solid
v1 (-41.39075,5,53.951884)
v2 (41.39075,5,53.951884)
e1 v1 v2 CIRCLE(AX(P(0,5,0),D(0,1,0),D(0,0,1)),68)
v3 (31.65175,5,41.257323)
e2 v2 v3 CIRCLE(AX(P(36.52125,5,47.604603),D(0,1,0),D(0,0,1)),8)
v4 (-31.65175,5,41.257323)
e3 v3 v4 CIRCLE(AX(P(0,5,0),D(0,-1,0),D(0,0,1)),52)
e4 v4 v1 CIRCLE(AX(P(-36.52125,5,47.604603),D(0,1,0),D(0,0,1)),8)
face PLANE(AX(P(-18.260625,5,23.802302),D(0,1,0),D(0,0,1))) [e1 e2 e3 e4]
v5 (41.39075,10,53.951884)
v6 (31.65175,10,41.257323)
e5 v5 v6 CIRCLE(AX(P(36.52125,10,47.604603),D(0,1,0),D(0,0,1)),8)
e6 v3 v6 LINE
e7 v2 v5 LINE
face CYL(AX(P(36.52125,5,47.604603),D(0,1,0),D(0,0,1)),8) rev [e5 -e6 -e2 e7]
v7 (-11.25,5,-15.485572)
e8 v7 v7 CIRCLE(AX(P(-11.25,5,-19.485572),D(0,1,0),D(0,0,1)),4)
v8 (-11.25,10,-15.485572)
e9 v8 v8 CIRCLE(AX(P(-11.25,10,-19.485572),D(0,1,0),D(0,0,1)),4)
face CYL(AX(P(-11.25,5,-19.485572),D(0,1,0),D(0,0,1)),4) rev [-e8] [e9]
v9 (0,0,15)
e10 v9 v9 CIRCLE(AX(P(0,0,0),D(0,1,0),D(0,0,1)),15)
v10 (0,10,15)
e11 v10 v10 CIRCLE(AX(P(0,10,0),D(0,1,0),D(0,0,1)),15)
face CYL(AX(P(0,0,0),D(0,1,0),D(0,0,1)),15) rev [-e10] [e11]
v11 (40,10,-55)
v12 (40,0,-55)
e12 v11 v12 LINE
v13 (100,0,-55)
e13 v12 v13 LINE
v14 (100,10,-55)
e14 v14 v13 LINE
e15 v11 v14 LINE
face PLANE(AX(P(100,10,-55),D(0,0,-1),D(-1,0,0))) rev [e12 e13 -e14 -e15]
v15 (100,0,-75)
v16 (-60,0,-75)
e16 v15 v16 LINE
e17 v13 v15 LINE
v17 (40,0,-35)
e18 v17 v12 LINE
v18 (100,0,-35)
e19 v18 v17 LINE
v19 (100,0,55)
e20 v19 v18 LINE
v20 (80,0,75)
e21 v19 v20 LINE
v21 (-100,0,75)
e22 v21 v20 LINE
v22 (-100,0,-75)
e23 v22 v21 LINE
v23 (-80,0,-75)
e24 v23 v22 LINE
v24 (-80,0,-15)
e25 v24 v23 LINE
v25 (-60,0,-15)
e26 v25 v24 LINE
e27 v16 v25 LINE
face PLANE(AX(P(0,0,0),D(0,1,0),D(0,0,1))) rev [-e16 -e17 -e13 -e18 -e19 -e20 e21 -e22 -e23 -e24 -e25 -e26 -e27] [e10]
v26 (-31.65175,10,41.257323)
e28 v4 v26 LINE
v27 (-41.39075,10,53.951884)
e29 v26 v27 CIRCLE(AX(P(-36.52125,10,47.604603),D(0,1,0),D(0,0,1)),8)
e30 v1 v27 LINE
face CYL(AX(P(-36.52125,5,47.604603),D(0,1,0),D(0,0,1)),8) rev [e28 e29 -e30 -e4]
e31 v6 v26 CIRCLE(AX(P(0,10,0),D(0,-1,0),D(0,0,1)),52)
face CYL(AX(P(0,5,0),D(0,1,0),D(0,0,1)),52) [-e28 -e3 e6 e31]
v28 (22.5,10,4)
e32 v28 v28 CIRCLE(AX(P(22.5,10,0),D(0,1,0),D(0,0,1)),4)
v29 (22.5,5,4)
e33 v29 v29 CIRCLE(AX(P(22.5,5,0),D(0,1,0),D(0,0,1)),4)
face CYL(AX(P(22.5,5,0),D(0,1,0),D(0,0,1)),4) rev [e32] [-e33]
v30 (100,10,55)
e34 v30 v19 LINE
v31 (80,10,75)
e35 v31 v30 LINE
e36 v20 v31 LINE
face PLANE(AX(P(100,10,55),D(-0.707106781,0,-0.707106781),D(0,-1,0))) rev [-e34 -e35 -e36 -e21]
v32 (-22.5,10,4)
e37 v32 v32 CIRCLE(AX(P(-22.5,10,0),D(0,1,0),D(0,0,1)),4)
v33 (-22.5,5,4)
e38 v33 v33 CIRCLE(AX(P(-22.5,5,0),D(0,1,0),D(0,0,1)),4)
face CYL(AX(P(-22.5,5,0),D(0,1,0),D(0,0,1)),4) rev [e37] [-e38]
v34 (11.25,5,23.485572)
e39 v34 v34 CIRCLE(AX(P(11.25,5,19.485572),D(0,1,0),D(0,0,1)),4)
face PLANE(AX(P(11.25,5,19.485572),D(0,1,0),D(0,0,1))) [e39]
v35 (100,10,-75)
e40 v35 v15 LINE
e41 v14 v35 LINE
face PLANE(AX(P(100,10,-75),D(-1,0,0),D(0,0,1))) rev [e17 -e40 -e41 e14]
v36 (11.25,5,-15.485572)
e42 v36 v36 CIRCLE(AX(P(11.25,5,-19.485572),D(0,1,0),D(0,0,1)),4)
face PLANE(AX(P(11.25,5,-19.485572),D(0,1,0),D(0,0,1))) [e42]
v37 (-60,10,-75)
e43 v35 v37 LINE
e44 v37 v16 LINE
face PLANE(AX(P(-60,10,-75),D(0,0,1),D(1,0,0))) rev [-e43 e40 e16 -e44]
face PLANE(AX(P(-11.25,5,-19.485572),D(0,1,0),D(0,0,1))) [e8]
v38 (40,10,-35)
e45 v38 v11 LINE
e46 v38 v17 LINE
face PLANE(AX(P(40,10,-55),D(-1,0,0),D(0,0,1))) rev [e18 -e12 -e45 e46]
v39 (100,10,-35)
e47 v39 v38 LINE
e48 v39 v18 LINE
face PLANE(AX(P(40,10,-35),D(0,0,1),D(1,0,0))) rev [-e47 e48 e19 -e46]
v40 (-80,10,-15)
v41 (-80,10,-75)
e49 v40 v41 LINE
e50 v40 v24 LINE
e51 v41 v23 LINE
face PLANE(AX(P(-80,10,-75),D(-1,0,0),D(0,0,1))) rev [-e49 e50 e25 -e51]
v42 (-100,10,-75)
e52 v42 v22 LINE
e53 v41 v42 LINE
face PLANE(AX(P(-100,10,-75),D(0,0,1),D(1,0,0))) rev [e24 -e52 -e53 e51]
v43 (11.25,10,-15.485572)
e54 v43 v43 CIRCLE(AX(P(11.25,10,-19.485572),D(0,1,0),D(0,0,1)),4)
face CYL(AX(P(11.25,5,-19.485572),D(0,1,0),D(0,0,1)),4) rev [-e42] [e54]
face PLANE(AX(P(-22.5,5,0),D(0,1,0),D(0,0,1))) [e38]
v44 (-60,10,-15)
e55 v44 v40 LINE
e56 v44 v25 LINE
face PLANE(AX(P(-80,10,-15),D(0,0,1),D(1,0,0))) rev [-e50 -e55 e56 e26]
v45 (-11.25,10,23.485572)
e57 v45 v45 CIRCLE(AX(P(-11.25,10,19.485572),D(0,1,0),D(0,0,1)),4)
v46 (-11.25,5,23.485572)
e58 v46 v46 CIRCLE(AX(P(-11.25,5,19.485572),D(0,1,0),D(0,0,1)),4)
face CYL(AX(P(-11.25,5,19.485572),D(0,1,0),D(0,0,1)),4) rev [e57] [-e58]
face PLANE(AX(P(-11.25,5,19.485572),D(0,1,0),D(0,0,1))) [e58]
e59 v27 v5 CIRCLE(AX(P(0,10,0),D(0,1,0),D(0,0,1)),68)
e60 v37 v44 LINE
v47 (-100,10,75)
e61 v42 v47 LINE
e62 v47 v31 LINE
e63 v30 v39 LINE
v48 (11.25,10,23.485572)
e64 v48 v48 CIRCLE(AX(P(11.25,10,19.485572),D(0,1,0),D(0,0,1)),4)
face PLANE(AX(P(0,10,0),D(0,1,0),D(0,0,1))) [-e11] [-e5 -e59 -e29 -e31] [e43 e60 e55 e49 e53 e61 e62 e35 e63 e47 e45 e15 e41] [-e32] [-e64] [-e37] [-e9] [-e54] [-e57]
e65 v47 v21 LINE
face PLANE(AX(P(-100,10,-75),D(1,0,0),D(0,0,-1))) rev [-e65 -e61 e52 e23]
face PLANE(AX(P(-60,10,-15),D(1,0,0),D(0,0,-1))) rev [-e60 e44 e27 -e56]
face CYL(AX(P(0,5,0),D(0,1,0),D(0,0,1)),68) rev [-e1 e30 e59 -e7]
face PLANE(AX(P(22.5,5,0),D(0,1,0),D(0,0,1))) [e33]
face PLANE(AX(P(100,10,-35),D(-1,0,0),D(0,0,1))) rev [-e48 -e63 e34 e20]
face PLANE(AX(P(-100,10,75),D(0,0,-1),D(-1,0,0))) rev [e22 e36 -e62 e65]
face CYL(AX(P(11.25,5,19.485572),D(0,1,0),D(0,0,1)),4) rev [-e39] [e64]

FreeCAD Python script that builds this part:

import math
import FreeCAD as App
import Part
import Sketcher
Q = App.Units.Quantity


def edges_at(feature, points):
    """Names of the edges that pass closest to the given points."""
    edges = feature.Shape.Edges
    near = lambda p: min(range(len(edges)), key=lambda i: edges[i].distToShape(Part.Vertex(*p))[0])
    return sorted({f"Edge{near(p) + 1}" for p in points})


def add_polygon(sketch, points):
    """Adds a closed chain of lines whose ends are joined by coincident constraints."""
    first, n = sketch.GeometryCount, len(points)
    for a, b in zip(points, points[1:] + points[:1]):
        sketch.addGeometry(Part.LineSegment(App.Vector(*a, 0), App.Vector(*b, 0)), False)
    for i in range(n):
        sketch.addConstraint(Sketcher.Constraint("Coincident", first + i, 2, first + (i + 1) % n, 1))

doc = App.newDocument("Part")
body = doc.addObject("PartDesign::Body", "Body")

# Sketch on XZ plane
sketch1 = body.newObject("Sketcher::SketchObject", "Sketch")
sketch1.AttachmentSupport = (doc.getObject("XZ_Plane"), [""])
sketch1.MapMode = "FlatFace"
add_polygon(sketch1, [(-80, -15), (-80, -75), (-100, -75), (-100, 75), (100, 75), (100, -35), (40, -35), (40, -55), (100, -55), (100, -75), (-60, -75), (-60, -15)])  # lines 0-11
sketch1.addConstraint([
    Sketcher.Constraint("Vertical", 0),
    Sketcher.Constraint("Horizontal", 1),
    Sketcher.Constraint("Vertical", 2),
    Sketcher.Constraint("Horizontal", 3),
    Sketcher.Constraint("Vertical", 4),
    Sketcher.Constraint("Horizontal", 5),
    Sketcher.Constraint("Vertical", 6),
    Sketcher.Constraint("Horizontal", 7),
    Sketcher.Constraint("Vertical", 8),
    Sketcher.Constraint("Horizontal", 9),
    Sketcher.Constraint("Vertical", 10),
    Sketcher.Constraint("Horizontal", 11),
    Sketcher.Constraint("Symmetric", 1, 2, 3, 2, -1, 1),
    Sketcher.Constraint("Symmetric", 2, 2, 8, 2, -1, 1),
    Sketcher.Constraint("Equal", 1, 11),
    Sketcher.Constraint("Equal", 7, 0),
    Sketcher.Constraint("Equal", 11, 6),
    Sketcher.Constraint("Equal", 6, 8),
    Sketcher.Constraint("DistanceX", 1, 2, 1, 1, Q("20 mm")),
    Sketcher.Constraint("DistanceX", 3, 1, 3, 2, Q("200 mm")),
    Sketcher.Constraint("DistanceX", 5, 2, 5, 1, Q("60 mm")),
    Sketcher.Constraint("DistanceY", 2, 1, 2, 2, Q("150 mm")),
])
pad1 = body.newObject("PartDesign::Pad", "Pad")
pad1.Profile = sketch1
pad1.Length = 10
pad1.Reversed = True

# Sketch on XZ plane
sketch2 = body.newObject("Sketcher::SketchObject", "Sketch001")
sketch2.AttachmentSupport = (doc.getObject("XZ_Plane"), [""])
sketch2.MapMode = "FlatFace"
sketch2.AttachmentOffset = App.Placement(App.Vector(0, 0, -10), App.Rotation())
sketch2.addGeometry(Part.Circle(App.Vector(0, 0, 0), App.Vector(0, 0, 1), 15), False)
sketch2.addConstraint([
    Sketcher.Constraint("Coincident", 0, 3, -1, 1),
    Sketcher.Constraint("Diameter", 0, Q("30 mm")),
])
pocket1 = body.newObject("PartDesign::Pocket", "Pocket")
pocket1.Profile = sketch2
pocket1.Type = "ThroughAll"
pocket1.Reversed = True

# Sketch on XZ plane
sketch3 = body.newObject("Sketcher::SketchObject", "Sketch002")
sketch3.AttachmentSupport = (doc.getObject("XZ_Plane"), [""])
sketch3.MapMode = "FlatFace"
sketch3.AttachmentOffset = App.Placement(App.Vector(0, 0, -10), App.Rotation())
sketch3.addGeometry([
    Part.Circle(App.Vector(0, 0, 0), App.Vector(0, 0, 1), 15),  # 0
    Part.Circle(App.Vector(22.5, 0, 0), App.Vector(0, 0, 1), 4),  # 1
    Part.Circle(App.Vector(11.2, 19.5, 0), App.Vector(0, 0, 1), 4),  # 2
    Part.Circle(App.Vector(-11.2, 19.5, 0), App.Vector(0, 0, 1), 4),  # 3
    Part.Circle(App.Vector(-22.5, 0, 0), App.Vector(0, 0, 1), 4),  # 4
    Part.Circle(App.Vector(-11.2, -19.5, 0), App.Vector(0, 0, 1), 4),  # 5
    Part.Circle(App.Vector(11.2, -19.5, 0), App.Vector(0, 0, 1), 4),  # 6
    Part.ArcOfCircle(Part.Circle(App.Vector(0, 0, 0), App.Vector(0, 0, 1), 68), math.radians(53), math.radians(127)),  # 7
    Part.ArcOfCircle(Part.Circle(App.Vector(36.5, 47.6, 0), App.Vector(0, 0, 1), 8), math.radians(-127), math.radians(53)),  # 8
    Part.ArcOfCircle(Part.Circle(App.Vector(0, 0, 0), App.Vector(0, 0, 1), 52), math.radians(53), math.radians(127)),  # 9
    Part.ArcOfCircle(Part.Circle(App.Vector(-36.5, 47.6, 0), App.Vector(0, 0, 1), 8), math.radians(127), math.radians(307)),  # 10
], False)
sketch3.addConstraint([
    Sketcher.Constraint("Tangent", 7, 1, 8, 2),
    Sketcher.Constraint("Tangent", 8, 1, 9, 1),
    Sketcher.Constraint("Tangent", 9, 2, 10, 2),
    Sketcher.Constraint("Tangent", 10, 1, 7, 2),
    Sketcher.Constraint("Coincident", 0, 3, -1, 1),
    Sketcher.Constraint("Coincident", 7, 3, -1, 1),
    Sketcher.Constraint("Coincident", 9, 3, -1, 1),
    Sketcher.Constraint("Equal", 1, 2),
    Sketcher.Constraint("Equal", 2, 3),
    Sketcher.Constraint("Equal", 3, 4),
    Sketcher.Constraint("Equal", 4, 5),
    Sketcher.Constraint("Equal", 5, 6),
    Sketcher.Constraint("Symmetric", 1, 3, 4, 3, -1, 1),
    Sketcher.Constraint("Symmetric", 2, 3, 5, 3, -1, 1),
    Sketcher.Constraint("Symmetric", 3, 3, 6, 3, -1, 1),
    Sketcher.Constraint("Symmetric", 2, 3, 3, 3, -2),
    Sketcher.Constraint("PointOnObject", 1, 3, -1),
    Sketcher.Constraint("Horizontal", 8, 3, 10, 3),
    Sketcher.Constraint("Diameter", 0, Q("30 mm")),
    Sketcher.Constraint("Diameter", 1, Q("8 mm")),
    Sketcher.Constraint("Radius", 7, Q("68 mm")),
    Sketcher.Constraint("Radius", 8, Q("8 mm")),
    Sketcher.Constraint("DistanceX", 4, 3, 1, 3, Q("45 mm")),
    Sketcher.Constraint("DistanceX", 3, 3, 2, 3, Q("22.5 mm")),
    Sketcher.Constraint("DistanceX", 8, 1, 7, 1, Q("9.739 mm")),
    Sketcher.Constraint("DistanceY", -1, 1, 2, 3, Q("19.485572 mm")),
])
pocket2 = body.newObject("PartDesign::Pocket", "Pocket001")
pocket2.Profile = sketch3
pocket2.Length = 5
pocket2.Reversed = True
doc.recompute()

chamfer = body.newObject("PartDesign::Chamfer", "Chamfer")
chamfer.Base = (pocket2, edges_at(pocket2, [(100, 5, 75)]))
chamfer.Size = 20

doc.recompute()
